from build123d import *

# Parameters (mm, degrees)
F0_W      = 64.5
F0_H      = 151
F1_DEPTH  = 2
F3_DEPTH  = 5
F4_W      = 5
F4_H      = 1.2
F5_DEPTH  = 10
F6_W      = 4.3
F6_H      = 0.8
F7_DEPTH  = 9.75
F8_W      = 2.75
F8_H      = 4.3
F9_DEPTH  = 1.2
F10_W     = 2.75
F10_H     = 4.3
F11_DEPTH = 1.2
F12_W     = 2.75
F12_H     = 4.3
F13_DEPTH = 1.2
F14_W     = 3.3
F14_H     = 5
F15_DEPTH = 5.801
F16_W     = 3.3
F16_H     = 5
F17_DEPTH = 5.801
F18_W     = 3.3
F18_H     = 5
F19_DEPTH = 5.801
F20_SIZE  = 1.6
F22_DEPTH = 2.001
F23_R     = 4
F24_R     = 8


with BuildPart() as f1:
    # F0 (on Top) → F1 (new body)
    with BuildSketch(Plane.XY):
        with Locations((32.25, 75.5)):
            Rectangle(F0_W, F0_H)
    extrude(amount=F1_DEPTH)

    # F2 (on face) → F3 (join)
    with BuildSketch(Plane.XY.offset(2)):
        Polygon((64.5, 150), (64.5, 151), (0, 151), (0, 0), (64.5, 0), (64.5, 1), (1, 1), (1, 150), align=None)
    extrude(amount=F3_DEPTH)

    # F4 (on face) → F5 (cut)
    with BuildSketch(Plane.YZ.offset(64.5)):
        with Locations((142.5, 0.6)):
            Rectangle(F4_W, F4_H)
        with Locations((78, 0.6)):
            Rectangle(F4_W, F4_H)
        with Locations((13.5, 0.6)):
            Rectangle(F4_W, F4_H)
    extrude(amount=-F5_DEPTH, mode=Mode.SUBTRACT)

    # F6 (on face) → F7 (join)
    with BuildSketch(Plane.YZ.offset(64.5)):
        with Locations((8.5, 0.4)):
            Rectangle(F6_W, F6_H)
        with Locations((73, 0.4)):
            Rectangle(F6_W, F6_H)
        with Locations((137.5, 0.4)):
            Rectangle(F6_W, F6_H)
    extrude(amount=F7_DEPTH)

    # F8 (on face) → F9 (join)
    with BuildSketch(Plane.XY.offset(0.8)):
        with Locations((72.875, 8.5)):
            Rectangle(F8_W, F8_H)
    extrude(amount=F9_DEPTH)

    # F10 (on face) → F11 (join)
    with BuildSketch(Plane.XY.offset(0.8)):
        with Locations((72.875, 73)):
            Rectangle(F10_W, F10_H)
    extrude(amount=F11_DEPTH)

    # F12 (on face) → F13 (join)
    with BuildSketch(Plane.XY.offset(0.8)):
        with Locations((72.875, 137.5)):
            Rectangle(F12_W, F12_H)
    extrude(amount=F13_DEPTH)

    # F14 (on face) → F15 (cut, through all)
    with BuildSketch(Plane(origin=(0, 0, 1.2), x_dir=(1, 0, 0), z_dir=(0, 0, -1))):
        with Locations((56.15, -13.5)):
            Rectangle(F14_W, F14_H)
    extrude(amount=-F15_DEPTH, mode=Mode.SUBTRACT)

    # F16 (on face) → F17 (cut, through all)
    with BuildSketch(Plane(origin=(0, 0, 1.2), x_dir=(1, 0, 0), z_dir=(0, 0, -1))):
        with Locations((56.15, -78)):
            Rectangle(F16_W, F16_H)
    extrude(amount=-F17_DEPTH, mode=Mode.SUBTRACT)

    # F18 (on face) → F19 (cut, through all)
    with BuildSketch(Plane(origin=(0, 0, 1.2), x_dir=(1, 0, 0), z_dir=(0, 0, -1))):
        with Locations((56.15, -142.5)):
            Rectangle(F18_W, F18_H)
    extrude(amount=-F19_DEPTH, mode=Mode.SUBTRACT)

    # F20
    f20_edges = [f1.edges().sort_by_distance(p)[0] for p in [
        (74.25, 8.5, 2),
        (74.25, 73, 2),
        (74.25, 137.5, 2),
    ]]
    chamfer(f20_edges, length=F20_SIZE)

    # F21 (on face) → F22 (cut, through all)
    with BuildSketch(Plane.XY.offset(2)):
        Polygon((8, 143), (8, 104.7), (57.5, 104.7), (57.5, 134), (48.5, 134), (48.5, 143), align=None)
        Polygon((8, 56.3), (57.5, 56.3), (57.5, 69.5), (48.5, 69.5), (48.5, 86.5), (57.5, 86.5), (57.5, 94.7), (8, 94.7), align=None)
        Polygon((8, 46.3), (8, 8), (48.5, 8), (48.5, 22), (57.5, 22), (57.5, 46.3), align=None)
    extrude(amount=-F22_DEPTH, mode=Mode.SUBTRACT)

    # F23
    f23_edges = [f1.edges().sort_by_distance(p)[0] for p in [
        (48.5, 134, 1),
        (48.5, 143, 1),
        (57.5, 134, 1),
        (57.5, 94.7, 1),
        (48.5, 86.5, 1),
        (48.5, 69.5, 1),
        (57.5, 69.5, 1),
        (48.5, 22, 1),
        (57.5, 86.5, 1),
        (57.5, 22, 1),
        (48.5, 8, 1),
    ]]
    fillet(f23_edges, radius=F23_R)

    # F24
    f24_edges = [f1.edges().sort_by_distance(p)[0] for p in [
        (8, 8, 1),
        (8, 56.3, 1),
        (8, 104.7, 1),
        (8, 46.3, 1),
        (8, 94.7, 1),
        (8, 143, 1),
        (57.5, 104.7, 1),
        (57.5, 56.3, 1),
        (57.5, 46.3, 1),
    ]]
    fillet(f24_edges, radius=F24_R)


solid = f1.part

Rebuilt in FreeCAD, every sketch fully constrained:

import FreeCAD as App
import Part
import Sketcher

V = App.Vector
Q = App.Units.Quantity


def edges_at(feature, points):
    """Names of the edges that pass closest to the given points."""
    edges = feature.Shape.Edges
    near = lambda p: min(range(len(edges)), key=lambda i: edges[i].distToShape(Part.Vertex(*p))[0])
    return sorted({f"Edge{near(p) + 1}" for p in points})


def add_polygon(sketch, points):
    """Adds a closed chain of lines whose ends are joined by coincident constraints."""
    first, n = sketch.GeometryCount, len(points)
    for a, b in zip(points, points[1:] + points[:1]):
        sketch.addGeometry(Part.LineSegment(App.Vector(*a, 0), App.Vector(*b, 0)), False)
    for i in range(n):
        sketch.addConstraint(Sketcher.Constraint("Coincident", first + i, 2, first + (i + 1) % n, 1))

doc = App.newDocument("Part")
body = doc.addObject("PartDesign::Body", "Body")

# Sketch on XY plane
sketch1 = body.newObject("Sketcher::SketchObject", "Sketch")
sketch1.AttachmentSupport = (doc.getObject("XY_Plane"), [""])
sketch1.MapMode = "FlatFace"
add_polygon(sketch1, [(0, 151), (0, 0), (64, 0), (64, 151)])  # lines 0-3
sketch1.addConstraint([
    Sketcher.Constraint("Vertical", 0),
    Sketcher.Constraint("Horizontal", 1),
    Sketcher.Constraint("Vertical", 2),
    Sketcher.Constraint("Horizontal", 3),
    Sketcher.Constraint("Coincident", 0, 2, -1, 1),
    Sketcher.Constraint("DistanceY", 0, 2, 0, 1, Q("151 mm")),
    Sketcher.Constraint("DistanceX", 1, 1, 1, 2, Q("64.5 mm")),
])
pad1 = body.newObject("PartDesign::Pad", "Pad")
pad1.Profile = sketch1
pad1.Length = 2

# Sketch on XY plane
sketch2 = body.newObject("Sketcher::SketchObject", "Sketch001")
sketch2.AttachmentSupport = (doc.getObject("XY_Plane"), [""])
sketch2.MapMode = "FlatFace"
sketch2.AttachmentOffset = App.Placement(V(0, 0, 2), App.Rotation())
add_polygon(sketch2, [(64.5, 150), (64.5, 151), (0, 151), (0, 0), (64.5, 0), (64.5, 1), (1, 1), (1, 150)])  # lines 0-7
sketch2.addConstraint([
    Sketcher.Constraint("Vertical", 0),
    Sketcher.Constraint("Horizontal", 1),
    Sketcher.Constraint("Vertical", 2),
    Sketcher.Constraint("Horizontal", 3),
    Sketcher.Constraint("Vertical", 4),
    Sketcher.Constraint("Horizontal", 5),
    Sketcher.Constraint("Vertical", 6),
    Sketcher.Constraint("Horizontal", 7),
    Sketcher.Constraint("Coincident", 2, 2, -1, 1),
    Sketcher.Constraint("Vertical", 0, 2, 3, 2),
    Sketcher.Constraint("Equal", 0, 4),
    Sketcher.Constraint("DistanceY", 0, 1, 0, 2, Q("1 mm")),
    Sketcher.Constraint("DistanceY", 2, 2, 2, 1, Q("151 mm")),
    Sketcher.Constraint("DistanceX", 1, 2, 1, 1, Q("64.5 mm")),
    Sketcher.Constraint("DistanceX", 5, 2, 5, 1, Q("63.5 mm")),
])
pad2 = body.newObject("PartDesign::Pad", "Pad001")
pad2.Profile = sketch2
pad2.Length = 5

# Sketch on YZ plane
sketch3 = body.newObject("Sketcher::SketchObject", "Sketch002")
sketch3.AttachmentSupport = (doc.getObject("YZ_Plane"), [""])
sketch3.MapMode = "FlatFace"
sketch3.AttachmentOffset = App.Placement(V(0, 0, 64.5), App.Rotation())
add_polygon(sketch3, [(140, 1.2), (140, 0), (145, 0), (145, 1.2)])  # lines 0-3
add_polygon(sketch3, [(75.5, 1.2), (75.5, 0), (80.5, 0), (80.5, 1.2)])  # lines 4-7
add_polygon(sketch3, [(11, 1.2), (11, 0), (16, 0), (16, 1.2)])  # lines 8-11
sketch3.addConstraint([
    Sketcher.Constraint("Vertical", 0),
    Sketcher.Constraint("Horizontal", 1),
    Sketcher.Constraint("Vertical", 2),
    Sketcher.Constraint("Horizontal", 3),
    Sketcher.Constraint("Vertical", 4),
    Sketcher.Constraint("Horizontal", 5),
    Sketcher.Constraint("Vertical", 6),
    Sketcher.Constraint("Horizontal", 7),
    Sketcher.Constraint("Vertical", 8),
    Sketcher.Constraint("Horizontal", 9),
    Sketcher.Constraint("Vertical", 10),
    Sketcher.Constraint("Horizontal", 11),
    Sketcher.Constraint("PointOnObject", 0, 2, -1),
    Sketcher.Constraint("PointOnObject", 4, 2, -1),
    Sketcher.Constraint("PointOnObject", 8, 2, -1),
    Sketcher.Constraint("Horizontal", 3, 2, 6, 2),
    Sketcher.Constraint("Horizontal", 7, 2, 10, 2),
    Sketcher.Constraint("Equal", 3, 5),
    Sketcher.Constraint("Equal", 7, 9),
    Sketcher.Constraint("DistanceX", 1, 1, 1, 2, Q("5 mm")),
    Sketcher.Constraint("DistanceY", 0, 2, 0, 1, Q("1.2 mm")),
    Sketcher.Constraint("DistanceX", -1, 1, 0, 2, Q("140 mm")),
    Sketcher.Constraint("DistanceX", -1, 1, 8, 2, Q("11 mm")),
    Sketcher.Constraint("DistanceX", -1, 1, 4, 2, Q("75.5 mm")),
])
pocket1 = body.newObject("PartDesign::Pocket", "Pocket")
pocket1.Profile = sketch3
pocket1.Length = 10

# Sketch on YZ plane
sketch4 = body.newObject("Sketcher::SketchObject", "Sketch003")
sketch4.AttachmentSupport = (doc.getObject("YZ_Plane"), [""])
sketch4.MapMode = "FlatFace"
sketch4.AttachmentOffset = App.Placement(V(0, 0, 64.5), App.Rotation())
add_polygon(sketch4, [(6.3, 0.8), (6.3, 0), (10.7, 0), (10.7, 0.8)])  # lines 0-3
add_polygon(sketch4, [(70.8, 0.8), (70.8, 0), (75.2, 0), (75.2, 0.8)])  # lines 4-7
add_polygon(sketch4, [(135.3, 0.8), (135.3, 0), (139.7, 0), (139.7, 0.8)])  # lines 8-11
sketch4.addConstraint([
    Sketcher.Constraint("Vertical", 0),
    Sketcher.Constraint("Horizontal", 1),
    Sketcher.Constraint("Vertical", 2),
    Sketcher.Constraint("Horizontal", 3),
    Sketcher.Constraint("Vertical", 4),
    Sketcher.Constraint("Horizontal", 5),
    Sketcher.Constraint("Vertical", 6),
    Sketcher.Constraint("Horizontal", 7),
    Sketcher.Constraint("Vertical", 8),
    Sketcher.Constraint("Horizontal", 9),
    Sketcher.Constraint("Vertical", 10),
    Sketcher.Constraint("Horizontal", 11),
    Sketcher.Constraint("PointOnObject", 0, 2, -1),
    Sketcher.Constraint("PointOnObject", 4, 2, -1),
    Sketcher.Constraint("PointOnObject", 8, 2, -1),
    Sketcher.Constraint("Horizontal", 3, 2, 6, 2),
    Sketcher.Constraint("Horizontal", 7, 2, 10, 2),
    Sketcher.Constraint("Equal", 3, 5),
    Sketcher.Constraint("Equal", 7, 9),
    Sketcher.Constraint("DistanceX", 1, 1, 1, 2, Q("4.3 mm")),
    Sketcher.Constraint("DistanceY", 0, 2, 0, 1, Q("0.8 mm")),
    Sketcher.Constraint("DistanceX", 1, 2, 4, 2, Q("60.2 mm")),
    Sketcher.Constraint("DistanceX", 5, 2, 8, 2, Q("60.2 mm")),
    Sketcher.Constraint("DistanceX", -1, 1, 0, 2, Q("6.35 mm")),
])
pad3 = body.newObject("PartDesign::Pad", "Pad002")
pad3.Profile = sketch4
pad3.Length = 9.75

# Sketch on XY plane
sketch5 = body.newObject("Sketcher::SketchObject", "Sketch004")
sketch5.AttachmentSupport = (doc.getObject("XY_Plane"), [""])
sketch5.MapMode = "FlatFace"
sketch5.AttachmentOffset = App.Placement(V(0, 0, 0.8), App.Rotation())
add_polygon(sketch5, [(71.5, 10.7), (71.5, 6.3), (74.2, 6.3), (74.2, 10.7)])  # lines 0-3
sketch5.addConstraint([
    Sketcher.Constraint("Vertical", 0),
    Sketcher.Constraint("Horizontal", 1),
    Sketcher.Constraint("Vertical", 2),
    Sketcher.Constraint("Horizontal", 3),
    Sketcher.Constraint("DistanceY", 0, 2, 0, 1, Q("4.3 mm")),
    Sketcher.Constraint("DistanceX", 1, 1, 1, 2, Q("2.75 mm")),
    Sketcher.Constraint("DistanceX", -1, 1, 0, 2, Q("71.5 mm")),
    Sketcher.Constraint("DistanceY", -1, 1, 0, 2, Q("6.35 mm")),
])
pad4 = body.newObject("PartDesign::Pad", "Pad003")
pad4.Profile = sketch5
pad4.Length = 1.2

# Sketch on XY plane
sketch6 = body.newObject("Sketcher::SketchObject", "Sketch005")
sketch6.AttachmentSupport = (doc.getObject("XY_Plane"), [""])
sketch6.MapMode = "FlatFace"
sketch6.AttachmentOffset = App.Placement(V(0, 0, 0.8), App.Rotation())
add_polygon(sketch6, [(71.5, 75.2), (71.5, 70.8), (74.2, 70.8), (74.2, 75.2)])  # lines 0-3
sketch6.addConstraint([
    Sketcher.Constraint("Vertical", 0),
    Sketcher.Constraint("Horizontal", 1),
    Sketcher.Constraint("Vertical", 2),
    Sketcher.Constraint("Horizontal", 3),
    Sketcher.Constraint("DistanceY", 0, 2, 0, 1, Q("4.3 mm")),
    Sketcher.Constraint("DistanceX", 1, 1, 1, 2, Q("2.75 mm")),
    Sketcher.Constraint("DistanceX", -1, 1, 0, 2, Q("71.5 mm")),
    Sketcher.Constraint("DistanceY", -1, 1, 0, 2, Q("70.85 mm")),
])
pad5 = body.newObject("PartDesign::Pad", "Pad004")
pad5.Profile = sketch6
pad5.Length = 1.2

# Sketch on XY plane
sketch7 = body.newObject("Sketcher::SketchObject", "Sketch006")
sketch7.AttachmentSupport = (doc.getObject("XY_Plane"), [""])
sketch7.MapMode = "FlatFace"
sketch7.AttachmentOffset = App.Placement(V(0, 0, 0.8), App.Rotation())
add_polygon(sketch7, [(71.5, 139.7), (71.5, 135.3), (74.2, 135.3), (74.2, 139.7)])  # lines 0-3
sketch7.addConstraint([
    Sketcher.Constraint("Vertical", 0),
    Sketcher.Constraint("Horizontal", 1),
    Sketcher.Constraint("Vertical", 2),
    Sketcher.Constraint("Horizontal", 3),
    Sketcher.Constraint("DistanceY", 0, 2, 0, 1, Q("4.3 mm")),
    Sketcher.Constraint("DistanceX", 1, 1, 1, 2, Q("2.75 mm")),
    Sketcher.Constraint("DistanceX", -1, 1, 0, 2, Q("71.5 mm")),
    Sketcher.Constraint("DistanceY", -1, 1, 0, 2, Q("135.35 mm")),
])
pad6 = body.newObject("PartDesign::Pad", "Pad005")
pad6.Profile = sketch7
pad6.Length = 1.2

# Sketch on XY plane
sketch8 = body.newObject("Sketcher::SketchObject", "Sketch007")
sketch8.AttachmentSupport = (doc.getObject("XY_Plane"), [""])
sketch8.MapMode = "FlatFace"
sketch8.AttachmentOffset = App.Placement(V(0, 0, 1.2), App.Rotation())
add_polygon(sketch8, [(54.5, 11), (54.5, 16), (57.8, 16), (57.8, 11)])  # lines 0-3
sketch8.addConstraint([
    Sketcher.Constraint("Vertical", 0),
    Sketcher.Constraint("Horizontal", 1),
    Sketcher.Constraint("Vertical", 2),
    Sketcher.Constraint("Horizontal", 3),
    Sketcher.Constraint("DistanceY", 0, 1, 0, 2, Q("5 mm")),
    Sketcher.Constraint("DistanceX", 1, 1, 1, 2, Q("3.3 mm")),
    Sketcher.Constraint("DistanceY", -1, 1, 0, 2, Q("16 mm")),
    Sketcher.Constraint("DistanceX", -1, 1, 0, 2, Q("54.5 mm")),
])
pocket2 = body.newObject("PartDesign::Pocket", "Pocket001")
pocket2.Profile = sketch8
pocket2.Type = "ThroughAll"
pocket2.Reversed = True

# Sketch on XY plane
sketch9 = body.newObject("Sketcher::SketchObject", "Sketch008")
sketch9.AttachmentSupport = (doc.getObject("XY_Plane"), [""])
sketch9.MapMode = "FlatFace"
sketch9.AttachmentOffset = App.Placement(V(0, 0, 1.2), App.Rotation())
add_polygon(sketch9, [(54.5, 75.5), (54.5, 80.5), (57.8, 80.5), (57.8, 75.5)])  # lines 0-3
sketch9.addConstraint([
    Sketcher.Constraint("Vertical", 0),
    Sketcher.Constraint("Horizontal", 1),
    Sketcher.Constraint("Vertical", 2),
    Sketcher.Constraint("Horizontal", 3),
    Sketcher.Constraint("DistanceY", 0, 1, 0, 2, Q("5 mm")),
    Sketcher.Constraint("DistanceX", 1, 1, 1, 2, Q("3.3 mm")),
    Sketcher.Constraint("DistanceX", -1, 1, 0, 2, Q("54.5 mm")),
    Sketcher.Constraint("DistanceY", -1, 1, 0, 2, Q("80.5 mm")),
])
pocket3 = body.newObject("PartDesign::Pocket", "Pocket002")
pocket3.Profile = sketch9
pocket3.Type = "ThroughAll"
pocket3.Reversed = True

# Sketch on XY plane
sketch10 = body.newObject("Sketcher::SketchObject", "Sketch009")
sketch10.AttachmentSupport = (doc.getObject("XY_Plane"), [""])
sketch10.MapMode = "FlatFace"
sketch10.AttachmentOffset = App.Placement(V(0, 0, 1.2), App.Rotation())
add_polygon(sketch10, [(54.5, 140), (54.5, 145), (57.8, 145), (57.8, 140)])  # lines 0-3
sketch10.addConstraint([
    Sketcher.Constraint("Vertical", 0),
    Sketcher.Constraint("Horizontal", 1),
    Sketcher.Constraint("Vertical", 2),
    Sketcher.Constraint("Horizontal", 3),
    Sketcher.Constraint("DistanceY", 0, 1, 0, 2, Q("5 mm")),
    Sketcher.Constraint("DistanceX", 1, 1, 1, 2, Q("3.3 mm")),
    Sketcher.Constraint("DistanceY", -1, 1, 0, 2, Q("145 mm")),
    Sketcher.Constraint("DistanceX", -1, 1, 0, 2, Q("54.5 mm")),
])
pocket4 = body.newObject("PartDesign::Pocket", "Pocket003")
pocket4.Profile = sketch10
pocket4.Type = "ThroughAll"
pocket4.Reversed = True
doc.recompute()

chamfer = body.newObject("PartDesign::Chamfer", "Chamfer")
chamfer.Base = (pocket4, edges_at(pocket4, [(74.25, 8.5, 2), (74.25, 73, 2), (74.25, 137.5, 2)]))
chamfer.Size = 1.6

# Sketch on XY plane
sketch11 = body.newObject("Sketcher::SketchObject", "Sketch010")
sketch11.AttachmentSupport = (doc.getObject("XY_Plane"), [""])
sketch11.MapMode = "FlatFace"
sketch11.AttachmentOffset = App.Placement(V(0, 0, 2), App.Rotation())
add_polygon(sketch11, [(8, 143), (8, 105), (58, 105), (58, 134), (48, 134), (48, 143)])  # lines 0-5
add_polygon(sketch11, [(8, 56), (58, 56), (58, 70), (48, 70), (48, 86), (58, 86), (58, 95), (8, 95)])  # lines 6-13
add_polygon(sketch11, [(8, 46), (8, 8), (48, 8), (48, 22), (58, 22), (58, 46)])  # lines 14-19
sketch11.addConstraint([
    Sketcher.Constraint("Vertical", 0),
    Sketcher.Constraint("Horizontal", 1),
    Sketcher.Constraint("Vertical", 2),
    Sketcher.Constraint("Horizontal", 3),
    Sketcher.Constraint("Vertical", 4),
    Sketcher.Constraint("Horizontal", 5),
    Sketcher.Constraint("Horizontal", 6),
    Sketcher.Constraint("Vertical", 7),
    Sketcher.Constraint("Horizontal", 8),
    Sketcher.Constraint("Vertical", 9),
    Sketcher.Constraint("Horizontal", 10),
    Sketcher.Constraint("Vertical", 11),
    Sketcher.Constraint("Horizontal", 12),
    Sketcher.Constraint("Vertical", 13),
    Sketcher.Constraint("Vertical", 14),
    Sketcher.Constraint("Horizontal", 15),
    Sketcher.Constraint("Vertical", 16),
    Sketcher.Constraint("Horizontal", 17),
    Sketcher.Constraint("Vertical", 18),
    Sketcher.Constraint("Horizontal", 19),
    Sketcher.Constraint("Vertical", 2, 2, 6, 2),
    Sketcher.Constraint("Vertical", 4, 2, 8, 2),
    Sketcher.Constraint("Vertical", 7, 2, 10, 2),
    Sketcher.Constraint("Vertical", 5, 2, 12, 2),
    Sketcher.Constraint("Vertical", 13, 2, 14, 2),
    Sketcher.Constraint("Vertical", 9, 2, 15, 2),
    Sketcher.Constraint("Vertical", 11, 2, 17, 2),
    Sketcher.Constraint("Equal", 17, 4),
    Sketcher.Constraint("Equal", 0, 14),
    Sketcher.Constraint("DistanceX", 3, 2, 3, 1, Q("9 mm")),
    Sketcher.Constraint("DistanceY", 9, 1, 9, 2, Q("17 mm")),
    Sketcher.Constraint("DistanceY", 16, 1, 16, 2, Q("14 mm")),
    Sketcher.Constraint("DistanceX", 1, 1, 1, 2, Q("49.5 mm")),
    Sketcher.Constraint("DistanceY", 0, 2, 0, 1, Q("38.3 mm")),
    Sketcher.Constraint("DistanceY", 7, 1, 7, 2, Q("13.2 mm")),
    Sketcher.Constraint("DistanceY", 11, 1, 11, 2, Q("8.2 mm")),
    Sketcher.Constraint("DistanceX", -1, 1, 0, 2, Q("8 mm")),
    Sketcher.Constraint("DistanceY", -1, 1, 2, 2, Q("134 mm")),
    Sketcher.Constraint("DistanceY", -1, 1, 14, 2, Q("8 mm")),
    Sketcher.Constraint("DistanceY", 11, 2, 1, 2, Q("10 mm")),
])
pocket5 = body.newObject("PartDesign::Pocket", "Pocket004")
pocket5.Profile = sketch11
pocket5.Type = "ThroughAll"
doc.recompute()

fillet = body.newObject("PartDesign::Fillet", "Fillet")
fillet.Base = (pocket5, edges_at(pocket5, [
    (48.5, 134, 1),
    (48.5, 143, 1),
    (57.5, 134, 1),
    (57.5, 94.7, 1),
    (48.5, 86.5, 1),
    (48.5, 69.5, 1),
    (57.5, 69.5, 1),
    (48.5, 22, 1),
    (57.5, 86.5, 1),
    (57.5, 22, 1),
    (48.5, 8, 1),
]))
fillet.Radius = 4
doc.recompute()

fillet2 = body.newObject("PartDesign::Fillet", "Fillet001")
fillet2.Base = (fillet, edges_at(fillet, [
    (8, 8, 1),
    (8, 56.3, 1),
    (8, 104.7, 1),
    (8, 46.3, 1),
    (8, 94.7, 1),
    (8, 143, 1),
    (57.5, 104.7, 1),
    (57.5, 56.3, 1),
    (57.5, 46.3, 1),
]))
fillet2.Radius = 8

doc.recompute()
